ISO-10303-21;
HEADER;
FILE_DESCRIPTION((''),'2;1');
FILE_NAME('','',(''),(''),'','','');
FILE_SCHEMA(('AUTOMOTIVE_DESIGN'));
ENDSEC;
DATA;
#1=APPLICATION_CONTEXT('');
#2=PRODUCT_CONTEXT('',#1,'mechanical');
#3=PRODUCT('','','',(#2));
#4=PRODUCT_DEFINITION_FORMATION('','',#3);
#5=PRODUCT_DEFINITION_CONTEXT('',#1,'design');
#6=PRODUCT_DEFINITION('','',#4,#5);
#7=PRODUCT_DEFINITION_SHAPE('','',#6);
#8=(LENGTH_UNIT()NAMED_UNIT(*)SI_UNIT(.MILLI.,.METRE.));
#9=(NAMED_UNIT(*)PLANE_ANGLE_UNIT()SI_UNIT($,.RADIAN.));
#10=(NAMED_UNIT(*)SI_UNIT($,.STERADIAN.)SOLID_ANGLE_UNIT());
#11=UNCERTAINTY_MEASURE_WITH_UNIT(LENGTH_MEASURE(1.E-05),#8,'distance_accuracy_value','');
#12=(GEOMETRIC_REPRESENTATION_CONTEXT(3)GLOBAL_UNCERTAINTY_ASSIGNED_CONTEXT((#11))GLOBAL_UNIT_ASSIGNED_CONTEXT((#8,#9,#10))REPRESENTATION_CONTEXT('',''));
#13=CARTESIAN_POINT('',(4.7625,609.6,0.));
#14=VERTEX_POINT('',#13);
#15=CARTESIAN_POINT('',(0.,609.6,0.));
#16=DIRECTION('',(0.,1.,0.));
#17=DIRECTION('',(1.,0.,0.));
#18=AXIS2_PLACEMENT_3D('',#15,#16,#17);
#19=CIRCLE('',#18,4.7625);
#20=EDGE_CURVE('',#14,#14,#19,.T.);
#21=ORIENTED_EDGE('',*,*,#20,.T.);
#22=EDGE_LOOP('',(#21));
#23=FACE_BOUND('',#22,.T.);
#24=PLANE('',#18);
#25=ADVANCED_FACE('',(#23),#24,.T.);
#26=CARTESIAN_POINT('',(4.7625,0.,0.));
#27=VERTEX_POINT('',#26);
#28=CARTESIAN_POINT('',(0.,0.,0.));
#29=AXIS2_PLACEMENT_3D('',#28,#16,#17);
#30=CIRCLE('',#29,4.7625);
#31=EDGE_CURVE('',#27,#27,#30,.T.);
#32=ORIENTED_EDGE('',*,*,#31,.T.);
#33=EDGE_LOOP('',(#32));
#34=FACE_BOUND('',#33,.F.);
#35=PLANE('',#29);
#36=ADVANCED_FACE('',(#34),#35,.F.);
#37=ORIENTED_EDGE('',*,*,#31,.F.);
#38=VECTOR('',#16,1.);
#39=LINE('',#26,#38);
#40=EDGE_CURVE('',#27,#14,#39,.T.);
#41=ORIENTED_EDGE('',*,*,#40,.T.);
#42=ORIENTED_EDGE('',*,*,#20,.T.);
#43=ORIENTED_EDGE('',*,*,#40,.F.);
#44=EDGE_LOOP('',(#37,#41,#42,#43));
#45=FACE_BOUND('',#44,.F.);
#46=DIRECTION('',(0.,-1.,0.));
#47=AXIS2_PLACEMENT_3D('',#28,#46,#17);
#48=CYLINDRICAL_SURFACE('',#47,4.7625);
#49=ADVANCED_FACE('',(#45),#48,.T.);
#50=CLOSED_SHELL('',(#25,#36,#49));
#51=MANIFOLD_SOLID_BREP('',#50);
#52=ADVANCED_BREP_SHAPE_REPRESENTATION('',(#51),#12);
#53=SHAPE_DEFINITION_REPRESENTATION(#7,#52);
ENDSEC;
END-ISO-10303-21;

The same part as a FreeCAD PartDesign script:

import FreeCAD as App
import Part
import Sketcher

V = App.Vector
Q = App.Units.Quantity

doc = App.newDocument("Part")
body = doc.addObject("PartDesign::Body", "Body")

# Sketch on XZ plane
sketch1 = body.newObject("Sketcher::SketchObject", "Sketch")
sketch1.AttachmentSupport = (doc.getObject("XZ_Plane"), [""])
sketch1.MapMode = "FlatFace"
sketch1.addGeometry(Part.Circle(V(0, 0, 0), V(0, 0, 1), 4.7625), False)
sketch1.addConstraint([
    Sketcher.Constraint("Coincident", 0, 3, -1, 1),
    Sketcher.Constraint("Diameter", 0, Q("0.375 in")),
])
pad1 = body.newObject("PartDesign::Pad", "Pad")
pad1.Profile = sketch1
pad1.Length = Q("24 in")
pad1.Reversed = True

doc.recompute()
